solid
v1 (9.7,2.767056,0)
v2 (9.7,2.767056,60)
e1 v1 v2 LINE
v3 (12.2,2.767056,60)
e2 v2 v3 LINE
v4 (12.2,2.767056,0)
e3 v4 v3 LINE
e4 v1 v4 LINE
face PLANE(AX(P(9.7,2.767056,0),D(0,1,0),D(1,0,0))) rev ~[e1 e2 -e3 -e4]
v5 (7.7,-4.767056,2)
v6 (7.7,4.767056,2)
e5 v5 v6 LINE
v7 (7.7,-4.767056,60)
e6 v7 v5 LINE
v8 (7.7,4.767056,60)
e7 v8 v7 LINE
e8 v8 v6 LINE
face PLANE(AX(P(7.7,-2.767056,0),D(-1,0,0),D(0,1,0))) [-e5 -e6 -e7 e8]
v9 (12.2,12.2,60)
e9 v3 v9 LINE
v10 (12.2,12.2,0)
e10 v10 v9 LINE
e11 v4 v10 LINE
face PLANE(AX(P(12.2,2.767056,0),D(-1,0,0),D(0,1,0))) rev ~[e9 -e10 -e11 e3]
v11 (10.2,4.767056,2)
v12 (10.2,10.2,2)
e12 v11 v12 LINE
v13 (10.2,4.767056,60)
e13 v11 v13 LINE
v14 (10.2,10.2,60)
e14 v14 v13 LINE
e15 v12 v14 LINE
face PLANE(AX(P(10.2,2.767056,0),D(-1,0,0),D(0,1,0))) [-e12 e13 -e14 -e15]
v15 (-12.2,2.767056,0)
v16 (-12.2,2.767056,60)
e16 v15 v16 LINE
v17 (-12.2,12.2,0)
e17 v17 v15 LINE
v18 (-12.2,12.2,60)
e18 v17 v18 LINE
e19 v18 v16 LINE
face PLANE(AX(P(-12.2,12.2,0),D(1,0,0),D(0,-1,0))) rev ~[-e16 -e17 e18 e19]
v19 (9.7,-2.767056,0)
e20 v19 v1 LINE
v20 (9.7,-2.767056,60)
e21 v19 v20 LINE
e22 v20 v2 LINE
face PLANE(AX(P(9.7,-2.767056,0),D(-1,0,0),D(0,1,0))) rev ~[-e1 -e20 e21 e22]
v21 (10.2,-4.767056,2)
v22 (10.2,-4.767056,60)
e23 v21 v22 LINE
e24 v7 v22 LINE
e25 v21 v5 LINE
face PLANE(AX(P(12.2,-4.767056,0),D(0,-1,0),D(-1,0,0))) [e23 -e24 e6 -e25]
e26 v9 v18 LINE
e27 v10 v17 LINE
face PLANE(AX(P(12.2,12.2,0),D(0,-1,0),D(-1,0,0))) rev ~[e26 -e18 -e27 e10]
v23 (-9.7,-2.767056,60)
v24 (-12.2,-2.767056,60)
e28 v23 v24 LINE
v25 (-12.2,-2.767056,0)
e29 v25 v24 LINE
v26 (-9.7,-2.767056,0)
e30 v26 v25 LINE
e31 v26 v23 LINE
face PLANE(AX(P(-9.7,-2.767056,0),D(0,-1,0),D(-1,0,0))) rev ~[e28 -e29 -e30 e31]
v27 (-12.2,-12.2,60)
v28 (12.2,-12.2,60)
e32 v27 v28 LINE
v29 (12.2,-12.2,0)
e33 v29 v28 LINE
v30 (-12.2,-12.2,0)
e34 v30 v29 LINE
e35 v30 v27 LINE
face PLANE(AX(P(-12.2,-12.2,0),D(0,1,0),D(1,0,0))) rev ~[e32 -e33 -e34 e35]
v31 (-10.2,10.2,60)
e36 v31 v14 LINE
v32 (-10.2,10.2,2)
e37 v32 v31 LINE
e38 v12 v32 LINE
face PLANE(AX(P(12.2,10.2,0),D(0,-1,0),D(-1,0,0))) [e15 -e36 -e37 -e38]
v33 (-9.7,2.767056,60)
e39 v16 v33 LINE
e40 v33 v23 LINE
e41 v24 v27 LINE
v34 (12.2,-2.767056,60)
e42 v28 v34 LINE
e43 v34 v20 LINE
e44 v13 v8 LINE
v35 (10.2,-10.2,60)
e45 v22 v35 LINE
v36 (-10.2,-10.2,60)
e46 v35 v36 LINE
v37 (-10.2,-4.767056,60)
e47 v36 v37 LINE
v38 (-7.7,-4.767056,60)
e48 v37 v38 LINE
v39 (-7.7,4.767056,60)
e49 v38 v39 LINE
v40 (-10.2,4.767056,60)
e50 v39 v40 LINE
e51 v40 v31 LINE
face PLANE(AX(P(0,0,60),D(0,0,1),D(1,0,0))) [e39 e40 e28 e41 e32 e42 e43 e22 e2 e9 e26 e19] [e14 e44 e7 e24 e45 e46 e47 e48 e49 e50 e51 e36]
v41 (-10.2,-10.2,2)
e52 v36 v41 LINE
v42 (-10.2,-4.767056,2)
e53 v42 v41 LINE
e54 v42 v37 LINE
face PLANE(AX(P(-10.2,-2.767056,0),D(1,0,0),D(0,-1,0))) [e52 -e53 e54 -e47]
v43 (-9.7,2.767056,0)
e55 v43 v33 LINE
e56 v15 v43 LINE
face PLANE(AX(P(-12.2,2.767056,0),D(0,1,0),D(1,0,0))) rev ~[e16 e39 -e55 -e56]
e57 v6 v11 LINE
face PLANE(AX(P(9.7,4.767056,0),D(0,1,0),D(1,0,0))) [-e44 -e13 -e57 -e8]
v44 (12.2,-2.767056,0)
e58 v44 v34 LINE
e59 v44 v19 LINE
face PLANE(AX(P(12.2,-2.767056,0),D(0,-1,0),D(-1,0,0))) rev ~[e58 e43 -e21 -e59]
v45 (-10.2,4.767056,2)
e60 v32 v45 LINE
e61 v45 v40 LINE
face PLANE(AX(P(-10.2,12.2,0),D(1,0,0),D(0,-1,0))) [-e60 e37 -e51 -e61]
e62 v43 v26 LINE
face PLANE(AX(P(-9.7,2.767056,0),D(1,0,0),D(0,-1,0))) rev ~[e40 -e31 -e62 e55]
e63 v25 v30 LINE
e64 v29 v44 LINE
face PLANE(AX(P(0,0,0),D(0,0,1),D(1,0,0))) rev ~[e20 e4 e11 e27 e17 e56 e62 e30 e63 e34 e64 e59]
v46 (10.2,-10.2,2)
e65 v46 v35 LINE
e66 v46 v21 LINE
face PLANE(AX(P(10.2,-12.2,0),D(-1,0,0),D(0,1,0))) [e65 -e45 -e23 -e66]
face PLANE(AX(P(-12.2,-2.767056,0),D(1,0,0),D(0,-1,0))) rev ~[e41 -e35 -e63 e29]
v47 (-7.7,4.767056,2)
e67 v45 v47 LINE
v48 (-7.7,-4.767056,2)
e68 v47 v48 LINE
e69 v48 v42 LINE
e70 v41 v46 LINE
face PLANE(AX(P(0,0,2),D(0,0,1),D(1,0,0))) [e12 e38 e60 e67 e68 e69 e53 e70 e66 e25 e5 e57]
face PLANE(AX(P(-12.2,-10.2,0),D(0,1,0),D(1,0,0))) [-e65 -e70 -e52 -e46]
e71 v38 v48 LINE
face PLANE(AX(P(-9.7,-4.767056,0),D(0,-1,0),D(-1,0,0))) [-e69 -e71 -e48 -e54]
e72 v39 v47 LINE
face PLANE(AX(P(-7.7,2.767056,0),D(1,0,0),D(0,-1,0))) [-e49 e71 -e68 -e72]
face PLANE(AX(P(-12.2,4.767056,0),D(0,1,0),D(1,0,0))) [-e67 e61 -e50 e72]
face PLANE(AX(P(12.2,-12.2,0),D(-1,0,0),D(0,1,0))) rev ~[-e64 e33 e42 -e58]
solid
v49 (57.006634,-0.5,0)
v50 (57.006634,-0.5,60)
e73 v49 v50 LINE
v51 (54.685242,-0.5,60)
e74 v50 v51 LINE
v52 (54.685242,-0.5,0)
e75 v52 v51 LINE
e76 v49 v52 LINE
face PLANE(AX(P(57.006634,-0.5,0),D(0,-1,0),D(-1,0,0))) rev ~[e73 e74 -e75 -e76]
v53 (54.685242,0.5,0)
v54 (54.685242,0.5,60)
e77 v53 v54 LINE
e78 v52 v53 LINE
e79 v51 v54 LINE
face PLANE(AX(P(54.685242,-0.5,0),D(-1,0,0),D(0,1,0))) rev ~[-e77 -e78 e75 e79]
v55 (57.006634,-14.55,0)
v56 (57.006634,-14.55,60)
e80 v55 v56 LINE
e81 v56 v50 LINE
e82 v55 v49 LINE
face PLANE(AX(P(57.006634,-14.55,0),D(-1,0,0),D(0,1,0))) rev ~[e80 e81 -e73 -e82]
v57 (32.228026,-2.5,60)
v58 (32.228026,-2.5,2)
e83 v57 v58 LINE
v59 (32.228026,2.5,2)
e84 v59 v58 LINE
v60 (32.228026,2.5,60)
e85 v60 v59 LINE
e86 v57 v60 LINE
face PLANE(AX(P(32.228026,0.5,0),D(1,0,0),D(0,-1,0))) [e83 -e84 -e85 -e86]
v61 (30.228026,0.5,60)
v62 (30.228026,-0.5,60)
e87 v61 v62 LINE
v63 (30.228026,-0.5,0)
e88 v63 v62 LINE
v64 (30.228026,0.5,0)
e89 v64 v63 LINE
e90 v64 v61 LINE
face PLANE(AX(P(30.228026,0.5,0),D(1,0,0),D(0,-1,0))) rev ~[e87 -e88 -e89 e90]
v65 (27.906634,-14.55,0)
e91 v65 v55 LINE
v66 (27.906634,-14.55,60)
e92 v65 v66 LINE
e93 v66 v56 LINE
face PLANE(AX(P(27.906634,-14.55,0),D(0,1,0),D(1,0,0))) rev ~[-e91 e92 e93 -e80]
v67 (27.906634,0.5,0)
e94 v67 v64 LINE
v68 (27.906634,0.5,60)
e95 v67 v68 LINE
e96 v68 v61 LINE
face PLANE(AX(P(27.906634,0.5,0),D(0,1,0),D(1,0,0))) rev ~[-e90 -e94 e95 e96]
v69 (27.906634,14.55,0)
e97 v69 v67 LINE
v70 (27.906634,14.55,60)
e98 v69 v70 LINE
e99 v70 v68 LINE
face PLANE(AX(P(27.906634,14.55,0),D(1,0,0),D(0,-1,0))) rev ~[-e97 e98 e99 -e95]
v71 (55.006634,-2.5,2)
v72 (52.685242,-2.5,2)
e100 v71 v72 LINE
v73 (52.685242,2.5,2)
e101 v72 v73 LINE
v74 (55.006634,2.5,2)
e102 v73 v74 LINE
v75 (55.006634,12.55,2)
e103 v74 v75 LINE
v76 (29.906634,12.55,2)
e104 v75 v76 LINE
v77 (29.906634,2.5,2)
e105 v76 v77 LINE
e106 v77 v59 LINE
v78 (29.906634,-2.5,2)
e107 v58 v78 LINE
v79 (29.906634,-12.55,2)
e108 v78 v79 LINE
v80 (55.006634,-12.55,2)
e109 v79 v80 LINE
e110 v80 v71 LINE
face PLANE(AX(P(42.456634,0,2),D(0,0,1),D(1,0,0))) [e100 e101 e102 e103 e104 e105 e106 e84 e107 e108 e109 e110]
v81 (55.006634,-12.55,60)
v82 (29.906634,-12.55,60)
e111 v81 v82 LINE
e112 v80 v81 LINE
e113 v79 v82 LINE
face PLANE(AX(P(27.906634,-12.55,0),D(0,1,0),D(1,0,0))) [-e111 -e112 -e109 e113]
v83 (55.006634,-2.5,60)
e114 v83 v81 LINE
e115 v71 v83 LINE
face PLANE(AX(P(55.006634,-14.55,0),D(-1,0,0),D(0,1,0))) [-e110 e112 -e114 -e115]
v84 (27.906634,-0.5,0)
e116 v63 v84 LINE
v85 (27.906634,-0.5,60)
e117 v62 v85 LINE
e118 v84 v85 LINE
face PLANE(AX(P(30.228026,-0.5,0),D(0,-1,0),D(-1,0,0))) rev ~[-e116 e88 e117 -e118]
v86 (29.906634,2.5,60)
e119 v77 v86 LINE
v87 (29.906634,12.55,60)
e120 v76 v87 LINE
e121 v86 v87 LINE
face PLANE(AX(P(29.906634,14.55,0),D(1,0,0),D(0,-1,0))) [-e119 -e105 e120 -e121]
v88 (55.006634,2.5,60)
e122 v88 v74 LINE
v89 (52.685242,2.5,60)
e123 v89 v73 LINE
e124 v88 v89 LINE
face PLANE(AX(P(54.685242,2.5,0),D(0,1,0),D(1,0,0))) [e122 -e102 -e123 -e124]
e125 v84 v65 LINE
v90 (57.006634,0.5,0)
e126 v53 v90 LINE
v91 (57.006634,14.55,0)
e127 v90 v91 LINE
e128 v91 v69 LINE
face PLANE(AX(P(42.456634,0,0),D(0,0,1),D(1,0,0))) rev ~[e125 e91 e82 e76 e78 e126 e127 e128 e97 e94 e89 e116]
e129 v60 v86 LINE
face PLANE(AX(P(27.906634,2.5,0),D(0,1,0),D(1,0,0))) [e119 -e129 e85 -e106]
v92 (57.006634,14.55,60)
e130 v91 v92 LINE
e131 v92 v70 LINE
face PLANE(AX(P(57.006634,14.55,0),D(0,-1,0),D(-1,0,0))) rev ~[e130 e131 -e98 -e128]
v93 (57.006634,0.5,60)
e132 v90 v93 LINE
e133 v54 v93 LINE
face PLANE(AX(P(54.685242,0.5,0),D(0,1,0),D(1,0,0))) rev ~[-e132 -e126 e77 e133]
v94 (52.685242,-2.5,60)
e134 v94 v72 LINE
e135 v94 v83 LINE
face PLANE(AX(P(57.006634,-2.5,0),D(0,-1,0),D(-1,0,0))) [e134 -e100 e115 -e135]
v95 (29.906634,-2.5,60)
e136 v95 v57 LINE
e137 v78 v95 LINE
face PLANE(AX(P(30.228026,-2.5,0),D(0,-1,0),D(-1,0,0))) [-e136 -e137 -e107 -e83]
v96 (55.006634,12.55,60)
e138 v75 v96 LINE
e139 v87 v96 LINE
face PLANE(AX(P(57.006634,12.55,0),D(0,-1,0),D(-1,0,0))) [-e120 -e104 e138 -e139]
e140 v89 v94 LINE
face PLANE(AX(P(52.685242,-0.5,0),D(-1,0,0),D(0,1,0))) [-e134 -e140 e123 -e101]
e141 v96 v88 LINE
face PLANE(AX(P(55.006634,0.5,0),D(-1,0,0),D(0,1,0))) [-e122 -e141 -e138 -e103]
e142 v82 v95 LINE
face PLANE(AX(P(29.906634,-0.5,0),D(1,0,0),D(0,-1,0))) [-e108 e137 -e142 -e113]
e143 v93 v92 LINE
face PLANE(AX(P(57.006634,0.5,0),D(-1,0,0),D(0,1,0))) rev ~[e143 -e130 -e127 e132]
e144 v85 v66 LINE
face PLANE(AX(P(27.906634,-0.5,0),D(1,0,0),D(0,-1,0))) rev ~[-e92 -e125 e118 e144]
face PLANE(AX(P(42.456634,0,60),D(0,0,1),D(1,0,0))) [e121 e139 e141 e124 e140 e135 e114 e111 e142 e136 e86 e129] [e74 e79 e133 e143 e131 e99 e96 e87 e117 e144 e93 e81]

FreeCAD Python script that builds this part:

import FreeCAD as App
import Part
import Sketcher
from FreeCAD import Vector
Q = App.Units.Quantity


def faces_at(feature, points):
    """Names of the faces that lie closest to the given points."""
    faces = feature.Shape.Faces
    near = lambda p: min(range(len(faces)), key=lambda i: faces[i].distToShape(Part.Vertex(*p))[0])
    return sorted({f"Face{near(p) + 1}" for p in points})


def add_polygon(sketch, points):
    """Adds a closed chain of lines whose ends are joined by coincident constraints."""
    first, n = sketch.GeometryCount, len(points)
    for a, b in zip(points, points[1:] + points[:1]):
        sketch.addGeometry(Part.LineSegment(App.Vector(*a, 0), App.Vector(*b, 0)), False)
    for i in range(n):
        sketch.addConstraint(Sketcher.Constraint("Coincident", first + i, 2, first + (i + 1) % n, 1))

doc = App.newDocument("Part")
body = doc.addObject("PartDesign::Body", "Body")

# Sketch on XY plane
sketch1 = body.newObject("Sketcher::SketchObject", "Sketch")
sketch1.AttachmentSupport = (doc.getObject("XY_Plane"), [""])
sketch1.MapMode = "FlatFace"
add_polygon(sketch1, [(-12.2, -12.2), (12.2, -12.2), (12.2, -2.8), (9.7, -2.8), (9.7, 2.8), (12.2, 2.8), (12.2, 12.2), (-12.2, 12.2), (-12.2, 2.8), (-9.7, 2.8), (-9.7, -2.8), (-12.2, -2.8)])  # lines 0-11
sketch1.addConstraint([
    Sketcher.Constraint("Horizontal", 0),
    Sketcher.Constraint("Vertical", 1),
    Sketcher.Constraint("Horizontal", 2),
    Sketcher.Constraint("Vertical", 3),
    Sketcher.Constraint("Horizontal", 4),
    Sketcher.Constraint("Vertical", 5),
    Sketcher.Constraint("Horizontal", 6),
    Sketcher.Constraint("Vertical", 7),
    Sketcher.Constraint("Horizontal", 8),
    Sketcher.Constraint("Vertical", 9),
    Sketcher.Constraint("Horizontal", 10),
    Sketcher.Constraint("Vertical", 11),
    Sketcher.Constraint("Symmetric", 0, 2, 6, 2, -1, 1),
    Sketcher.Constraint("Symmetric", 2, 2, 8, 2, -1, 1),
    Sketcher.Constraint("Symmetric", 4, 2, 10, 2, -1, 1),
    Sketcher.Constraint("Symmetric", 4, 2, 7, 2, -2),
    Sketcher.Constraint("DistanceX", 0, 1, 0, 2, Q("24.4 mm")),
    Sketcher.Constraint("DistanceX", 2, 2, 2, 1, Q("2.5 mm")),
    Sketcher.Constraint("DistanceY", 0, 2, -1, 1, Q("12.2 mm")),
    Sketcher.Constraint("DistanceY", 1, 1, 1, 2, Q("9.432944 mm")),
])
pad1 = body.newObject("PartDesign::Pad", "Pad")
pad1.Profile = sketch1
pad1.Length = 60
doc.recompute()

thickness = body.newObject("PartDesign::Thickness", "Thickness")
thickness.Base = (pad1, faces_at(pad1, [(0, 0, 60)]))
thickness.Value = 2
thickness.Reversed = True
thickness.Join = "Intersection"
body2 = doc.addObject("PartDesign::Body", "Body001")

# Sketch on XY plane
sketch2 = body2.newObject("Sketcher::SketchObject", "Sketch001")
sketch2.AttachmentSupport = (doc.getObject("XY_Plane001"), [""])
sketch2.MapMode = "FlatFace"
add_polygon(sketch2, [(57, 0.5), (57, 14.6), (27.9, 14.6), (27.9, 0.5), (30.2, 0.5), (30.2, -0.5), (27.9, -0.5), (27.9, -14.6), (57, -14.6), (57, -0.5), (54.7, -0.5), (54.7, 0.5)])  # lines 0-11
sketch2.addConstraint([
    Sketcher.Constraint("Vertical", 0),
    Sketcher.Constraint("Horizontal", 1),
    Sketcher.Constraint("Vertical", 2),
    Sketcher.Constraint("Horizontal", 3),
    Sketcher.Constraint("Vertical", 4),
    Sketcher.Constraint("Horizontal", 5),
    Sketcher.Constraint("Vertical", 6),
    Sketcher.Constraint("Horizontal", 7),
    Sketcher.Constraint("Vertical", 8),
    Sketcher.Constraint("Horizontal", 9),
    Sketcher.Constraint("Vertical", 10),
    Sketcher.Constraint("Horizontal", 11),
    Sketcher.Constraint("Symmetric", 2, 2, 5, 2, -1),
    Sketcher.Constraint("Symmetric", 0, 2, 7, 2, -1),
    Sketcher.Constraint("Horizontal", 5, 2, 8, 2),
    Sketcher.Constraint("Horizontal", 3, 2, 10, 2),
    Sketcher.Constraint("Equal", 5, 9),
    Sketcher.Constraint("DistanceY", 4, 2, 4, 1, Q("1 mm")),
    Sketcher.Constraint("DistanceX", 1, 2, 1, 1, Q("29.1 mm")),
    Sketcher.Constraint("DistanceY", 0, 1, 0, 2, Q("14.05 mm")),
    Sketcher.Constraint("DistanceX", 3, 1, 3, 2, Q("2.321392 mm")),
    Sketcher.Constraint("DistanceX", -1, 1, 0, 2, Q("57.006634 mm")),
])
pad2 = body2.newObject("PartDesign::Pad", "Pad001")
pad2.Profile = sketch2
pad2.Length = 60
doc.recompute()

thickness2 = body2.newObject("PartDesign::Thickness", "Thickness001")
thickness2.Base = (pad2, faces_at(pad2, [(42.457, 0, 60)]))
thickness2.Value = 2
thickness2.Reversed = True
thickness2.Join = "Intersection"

doc.recompute()
